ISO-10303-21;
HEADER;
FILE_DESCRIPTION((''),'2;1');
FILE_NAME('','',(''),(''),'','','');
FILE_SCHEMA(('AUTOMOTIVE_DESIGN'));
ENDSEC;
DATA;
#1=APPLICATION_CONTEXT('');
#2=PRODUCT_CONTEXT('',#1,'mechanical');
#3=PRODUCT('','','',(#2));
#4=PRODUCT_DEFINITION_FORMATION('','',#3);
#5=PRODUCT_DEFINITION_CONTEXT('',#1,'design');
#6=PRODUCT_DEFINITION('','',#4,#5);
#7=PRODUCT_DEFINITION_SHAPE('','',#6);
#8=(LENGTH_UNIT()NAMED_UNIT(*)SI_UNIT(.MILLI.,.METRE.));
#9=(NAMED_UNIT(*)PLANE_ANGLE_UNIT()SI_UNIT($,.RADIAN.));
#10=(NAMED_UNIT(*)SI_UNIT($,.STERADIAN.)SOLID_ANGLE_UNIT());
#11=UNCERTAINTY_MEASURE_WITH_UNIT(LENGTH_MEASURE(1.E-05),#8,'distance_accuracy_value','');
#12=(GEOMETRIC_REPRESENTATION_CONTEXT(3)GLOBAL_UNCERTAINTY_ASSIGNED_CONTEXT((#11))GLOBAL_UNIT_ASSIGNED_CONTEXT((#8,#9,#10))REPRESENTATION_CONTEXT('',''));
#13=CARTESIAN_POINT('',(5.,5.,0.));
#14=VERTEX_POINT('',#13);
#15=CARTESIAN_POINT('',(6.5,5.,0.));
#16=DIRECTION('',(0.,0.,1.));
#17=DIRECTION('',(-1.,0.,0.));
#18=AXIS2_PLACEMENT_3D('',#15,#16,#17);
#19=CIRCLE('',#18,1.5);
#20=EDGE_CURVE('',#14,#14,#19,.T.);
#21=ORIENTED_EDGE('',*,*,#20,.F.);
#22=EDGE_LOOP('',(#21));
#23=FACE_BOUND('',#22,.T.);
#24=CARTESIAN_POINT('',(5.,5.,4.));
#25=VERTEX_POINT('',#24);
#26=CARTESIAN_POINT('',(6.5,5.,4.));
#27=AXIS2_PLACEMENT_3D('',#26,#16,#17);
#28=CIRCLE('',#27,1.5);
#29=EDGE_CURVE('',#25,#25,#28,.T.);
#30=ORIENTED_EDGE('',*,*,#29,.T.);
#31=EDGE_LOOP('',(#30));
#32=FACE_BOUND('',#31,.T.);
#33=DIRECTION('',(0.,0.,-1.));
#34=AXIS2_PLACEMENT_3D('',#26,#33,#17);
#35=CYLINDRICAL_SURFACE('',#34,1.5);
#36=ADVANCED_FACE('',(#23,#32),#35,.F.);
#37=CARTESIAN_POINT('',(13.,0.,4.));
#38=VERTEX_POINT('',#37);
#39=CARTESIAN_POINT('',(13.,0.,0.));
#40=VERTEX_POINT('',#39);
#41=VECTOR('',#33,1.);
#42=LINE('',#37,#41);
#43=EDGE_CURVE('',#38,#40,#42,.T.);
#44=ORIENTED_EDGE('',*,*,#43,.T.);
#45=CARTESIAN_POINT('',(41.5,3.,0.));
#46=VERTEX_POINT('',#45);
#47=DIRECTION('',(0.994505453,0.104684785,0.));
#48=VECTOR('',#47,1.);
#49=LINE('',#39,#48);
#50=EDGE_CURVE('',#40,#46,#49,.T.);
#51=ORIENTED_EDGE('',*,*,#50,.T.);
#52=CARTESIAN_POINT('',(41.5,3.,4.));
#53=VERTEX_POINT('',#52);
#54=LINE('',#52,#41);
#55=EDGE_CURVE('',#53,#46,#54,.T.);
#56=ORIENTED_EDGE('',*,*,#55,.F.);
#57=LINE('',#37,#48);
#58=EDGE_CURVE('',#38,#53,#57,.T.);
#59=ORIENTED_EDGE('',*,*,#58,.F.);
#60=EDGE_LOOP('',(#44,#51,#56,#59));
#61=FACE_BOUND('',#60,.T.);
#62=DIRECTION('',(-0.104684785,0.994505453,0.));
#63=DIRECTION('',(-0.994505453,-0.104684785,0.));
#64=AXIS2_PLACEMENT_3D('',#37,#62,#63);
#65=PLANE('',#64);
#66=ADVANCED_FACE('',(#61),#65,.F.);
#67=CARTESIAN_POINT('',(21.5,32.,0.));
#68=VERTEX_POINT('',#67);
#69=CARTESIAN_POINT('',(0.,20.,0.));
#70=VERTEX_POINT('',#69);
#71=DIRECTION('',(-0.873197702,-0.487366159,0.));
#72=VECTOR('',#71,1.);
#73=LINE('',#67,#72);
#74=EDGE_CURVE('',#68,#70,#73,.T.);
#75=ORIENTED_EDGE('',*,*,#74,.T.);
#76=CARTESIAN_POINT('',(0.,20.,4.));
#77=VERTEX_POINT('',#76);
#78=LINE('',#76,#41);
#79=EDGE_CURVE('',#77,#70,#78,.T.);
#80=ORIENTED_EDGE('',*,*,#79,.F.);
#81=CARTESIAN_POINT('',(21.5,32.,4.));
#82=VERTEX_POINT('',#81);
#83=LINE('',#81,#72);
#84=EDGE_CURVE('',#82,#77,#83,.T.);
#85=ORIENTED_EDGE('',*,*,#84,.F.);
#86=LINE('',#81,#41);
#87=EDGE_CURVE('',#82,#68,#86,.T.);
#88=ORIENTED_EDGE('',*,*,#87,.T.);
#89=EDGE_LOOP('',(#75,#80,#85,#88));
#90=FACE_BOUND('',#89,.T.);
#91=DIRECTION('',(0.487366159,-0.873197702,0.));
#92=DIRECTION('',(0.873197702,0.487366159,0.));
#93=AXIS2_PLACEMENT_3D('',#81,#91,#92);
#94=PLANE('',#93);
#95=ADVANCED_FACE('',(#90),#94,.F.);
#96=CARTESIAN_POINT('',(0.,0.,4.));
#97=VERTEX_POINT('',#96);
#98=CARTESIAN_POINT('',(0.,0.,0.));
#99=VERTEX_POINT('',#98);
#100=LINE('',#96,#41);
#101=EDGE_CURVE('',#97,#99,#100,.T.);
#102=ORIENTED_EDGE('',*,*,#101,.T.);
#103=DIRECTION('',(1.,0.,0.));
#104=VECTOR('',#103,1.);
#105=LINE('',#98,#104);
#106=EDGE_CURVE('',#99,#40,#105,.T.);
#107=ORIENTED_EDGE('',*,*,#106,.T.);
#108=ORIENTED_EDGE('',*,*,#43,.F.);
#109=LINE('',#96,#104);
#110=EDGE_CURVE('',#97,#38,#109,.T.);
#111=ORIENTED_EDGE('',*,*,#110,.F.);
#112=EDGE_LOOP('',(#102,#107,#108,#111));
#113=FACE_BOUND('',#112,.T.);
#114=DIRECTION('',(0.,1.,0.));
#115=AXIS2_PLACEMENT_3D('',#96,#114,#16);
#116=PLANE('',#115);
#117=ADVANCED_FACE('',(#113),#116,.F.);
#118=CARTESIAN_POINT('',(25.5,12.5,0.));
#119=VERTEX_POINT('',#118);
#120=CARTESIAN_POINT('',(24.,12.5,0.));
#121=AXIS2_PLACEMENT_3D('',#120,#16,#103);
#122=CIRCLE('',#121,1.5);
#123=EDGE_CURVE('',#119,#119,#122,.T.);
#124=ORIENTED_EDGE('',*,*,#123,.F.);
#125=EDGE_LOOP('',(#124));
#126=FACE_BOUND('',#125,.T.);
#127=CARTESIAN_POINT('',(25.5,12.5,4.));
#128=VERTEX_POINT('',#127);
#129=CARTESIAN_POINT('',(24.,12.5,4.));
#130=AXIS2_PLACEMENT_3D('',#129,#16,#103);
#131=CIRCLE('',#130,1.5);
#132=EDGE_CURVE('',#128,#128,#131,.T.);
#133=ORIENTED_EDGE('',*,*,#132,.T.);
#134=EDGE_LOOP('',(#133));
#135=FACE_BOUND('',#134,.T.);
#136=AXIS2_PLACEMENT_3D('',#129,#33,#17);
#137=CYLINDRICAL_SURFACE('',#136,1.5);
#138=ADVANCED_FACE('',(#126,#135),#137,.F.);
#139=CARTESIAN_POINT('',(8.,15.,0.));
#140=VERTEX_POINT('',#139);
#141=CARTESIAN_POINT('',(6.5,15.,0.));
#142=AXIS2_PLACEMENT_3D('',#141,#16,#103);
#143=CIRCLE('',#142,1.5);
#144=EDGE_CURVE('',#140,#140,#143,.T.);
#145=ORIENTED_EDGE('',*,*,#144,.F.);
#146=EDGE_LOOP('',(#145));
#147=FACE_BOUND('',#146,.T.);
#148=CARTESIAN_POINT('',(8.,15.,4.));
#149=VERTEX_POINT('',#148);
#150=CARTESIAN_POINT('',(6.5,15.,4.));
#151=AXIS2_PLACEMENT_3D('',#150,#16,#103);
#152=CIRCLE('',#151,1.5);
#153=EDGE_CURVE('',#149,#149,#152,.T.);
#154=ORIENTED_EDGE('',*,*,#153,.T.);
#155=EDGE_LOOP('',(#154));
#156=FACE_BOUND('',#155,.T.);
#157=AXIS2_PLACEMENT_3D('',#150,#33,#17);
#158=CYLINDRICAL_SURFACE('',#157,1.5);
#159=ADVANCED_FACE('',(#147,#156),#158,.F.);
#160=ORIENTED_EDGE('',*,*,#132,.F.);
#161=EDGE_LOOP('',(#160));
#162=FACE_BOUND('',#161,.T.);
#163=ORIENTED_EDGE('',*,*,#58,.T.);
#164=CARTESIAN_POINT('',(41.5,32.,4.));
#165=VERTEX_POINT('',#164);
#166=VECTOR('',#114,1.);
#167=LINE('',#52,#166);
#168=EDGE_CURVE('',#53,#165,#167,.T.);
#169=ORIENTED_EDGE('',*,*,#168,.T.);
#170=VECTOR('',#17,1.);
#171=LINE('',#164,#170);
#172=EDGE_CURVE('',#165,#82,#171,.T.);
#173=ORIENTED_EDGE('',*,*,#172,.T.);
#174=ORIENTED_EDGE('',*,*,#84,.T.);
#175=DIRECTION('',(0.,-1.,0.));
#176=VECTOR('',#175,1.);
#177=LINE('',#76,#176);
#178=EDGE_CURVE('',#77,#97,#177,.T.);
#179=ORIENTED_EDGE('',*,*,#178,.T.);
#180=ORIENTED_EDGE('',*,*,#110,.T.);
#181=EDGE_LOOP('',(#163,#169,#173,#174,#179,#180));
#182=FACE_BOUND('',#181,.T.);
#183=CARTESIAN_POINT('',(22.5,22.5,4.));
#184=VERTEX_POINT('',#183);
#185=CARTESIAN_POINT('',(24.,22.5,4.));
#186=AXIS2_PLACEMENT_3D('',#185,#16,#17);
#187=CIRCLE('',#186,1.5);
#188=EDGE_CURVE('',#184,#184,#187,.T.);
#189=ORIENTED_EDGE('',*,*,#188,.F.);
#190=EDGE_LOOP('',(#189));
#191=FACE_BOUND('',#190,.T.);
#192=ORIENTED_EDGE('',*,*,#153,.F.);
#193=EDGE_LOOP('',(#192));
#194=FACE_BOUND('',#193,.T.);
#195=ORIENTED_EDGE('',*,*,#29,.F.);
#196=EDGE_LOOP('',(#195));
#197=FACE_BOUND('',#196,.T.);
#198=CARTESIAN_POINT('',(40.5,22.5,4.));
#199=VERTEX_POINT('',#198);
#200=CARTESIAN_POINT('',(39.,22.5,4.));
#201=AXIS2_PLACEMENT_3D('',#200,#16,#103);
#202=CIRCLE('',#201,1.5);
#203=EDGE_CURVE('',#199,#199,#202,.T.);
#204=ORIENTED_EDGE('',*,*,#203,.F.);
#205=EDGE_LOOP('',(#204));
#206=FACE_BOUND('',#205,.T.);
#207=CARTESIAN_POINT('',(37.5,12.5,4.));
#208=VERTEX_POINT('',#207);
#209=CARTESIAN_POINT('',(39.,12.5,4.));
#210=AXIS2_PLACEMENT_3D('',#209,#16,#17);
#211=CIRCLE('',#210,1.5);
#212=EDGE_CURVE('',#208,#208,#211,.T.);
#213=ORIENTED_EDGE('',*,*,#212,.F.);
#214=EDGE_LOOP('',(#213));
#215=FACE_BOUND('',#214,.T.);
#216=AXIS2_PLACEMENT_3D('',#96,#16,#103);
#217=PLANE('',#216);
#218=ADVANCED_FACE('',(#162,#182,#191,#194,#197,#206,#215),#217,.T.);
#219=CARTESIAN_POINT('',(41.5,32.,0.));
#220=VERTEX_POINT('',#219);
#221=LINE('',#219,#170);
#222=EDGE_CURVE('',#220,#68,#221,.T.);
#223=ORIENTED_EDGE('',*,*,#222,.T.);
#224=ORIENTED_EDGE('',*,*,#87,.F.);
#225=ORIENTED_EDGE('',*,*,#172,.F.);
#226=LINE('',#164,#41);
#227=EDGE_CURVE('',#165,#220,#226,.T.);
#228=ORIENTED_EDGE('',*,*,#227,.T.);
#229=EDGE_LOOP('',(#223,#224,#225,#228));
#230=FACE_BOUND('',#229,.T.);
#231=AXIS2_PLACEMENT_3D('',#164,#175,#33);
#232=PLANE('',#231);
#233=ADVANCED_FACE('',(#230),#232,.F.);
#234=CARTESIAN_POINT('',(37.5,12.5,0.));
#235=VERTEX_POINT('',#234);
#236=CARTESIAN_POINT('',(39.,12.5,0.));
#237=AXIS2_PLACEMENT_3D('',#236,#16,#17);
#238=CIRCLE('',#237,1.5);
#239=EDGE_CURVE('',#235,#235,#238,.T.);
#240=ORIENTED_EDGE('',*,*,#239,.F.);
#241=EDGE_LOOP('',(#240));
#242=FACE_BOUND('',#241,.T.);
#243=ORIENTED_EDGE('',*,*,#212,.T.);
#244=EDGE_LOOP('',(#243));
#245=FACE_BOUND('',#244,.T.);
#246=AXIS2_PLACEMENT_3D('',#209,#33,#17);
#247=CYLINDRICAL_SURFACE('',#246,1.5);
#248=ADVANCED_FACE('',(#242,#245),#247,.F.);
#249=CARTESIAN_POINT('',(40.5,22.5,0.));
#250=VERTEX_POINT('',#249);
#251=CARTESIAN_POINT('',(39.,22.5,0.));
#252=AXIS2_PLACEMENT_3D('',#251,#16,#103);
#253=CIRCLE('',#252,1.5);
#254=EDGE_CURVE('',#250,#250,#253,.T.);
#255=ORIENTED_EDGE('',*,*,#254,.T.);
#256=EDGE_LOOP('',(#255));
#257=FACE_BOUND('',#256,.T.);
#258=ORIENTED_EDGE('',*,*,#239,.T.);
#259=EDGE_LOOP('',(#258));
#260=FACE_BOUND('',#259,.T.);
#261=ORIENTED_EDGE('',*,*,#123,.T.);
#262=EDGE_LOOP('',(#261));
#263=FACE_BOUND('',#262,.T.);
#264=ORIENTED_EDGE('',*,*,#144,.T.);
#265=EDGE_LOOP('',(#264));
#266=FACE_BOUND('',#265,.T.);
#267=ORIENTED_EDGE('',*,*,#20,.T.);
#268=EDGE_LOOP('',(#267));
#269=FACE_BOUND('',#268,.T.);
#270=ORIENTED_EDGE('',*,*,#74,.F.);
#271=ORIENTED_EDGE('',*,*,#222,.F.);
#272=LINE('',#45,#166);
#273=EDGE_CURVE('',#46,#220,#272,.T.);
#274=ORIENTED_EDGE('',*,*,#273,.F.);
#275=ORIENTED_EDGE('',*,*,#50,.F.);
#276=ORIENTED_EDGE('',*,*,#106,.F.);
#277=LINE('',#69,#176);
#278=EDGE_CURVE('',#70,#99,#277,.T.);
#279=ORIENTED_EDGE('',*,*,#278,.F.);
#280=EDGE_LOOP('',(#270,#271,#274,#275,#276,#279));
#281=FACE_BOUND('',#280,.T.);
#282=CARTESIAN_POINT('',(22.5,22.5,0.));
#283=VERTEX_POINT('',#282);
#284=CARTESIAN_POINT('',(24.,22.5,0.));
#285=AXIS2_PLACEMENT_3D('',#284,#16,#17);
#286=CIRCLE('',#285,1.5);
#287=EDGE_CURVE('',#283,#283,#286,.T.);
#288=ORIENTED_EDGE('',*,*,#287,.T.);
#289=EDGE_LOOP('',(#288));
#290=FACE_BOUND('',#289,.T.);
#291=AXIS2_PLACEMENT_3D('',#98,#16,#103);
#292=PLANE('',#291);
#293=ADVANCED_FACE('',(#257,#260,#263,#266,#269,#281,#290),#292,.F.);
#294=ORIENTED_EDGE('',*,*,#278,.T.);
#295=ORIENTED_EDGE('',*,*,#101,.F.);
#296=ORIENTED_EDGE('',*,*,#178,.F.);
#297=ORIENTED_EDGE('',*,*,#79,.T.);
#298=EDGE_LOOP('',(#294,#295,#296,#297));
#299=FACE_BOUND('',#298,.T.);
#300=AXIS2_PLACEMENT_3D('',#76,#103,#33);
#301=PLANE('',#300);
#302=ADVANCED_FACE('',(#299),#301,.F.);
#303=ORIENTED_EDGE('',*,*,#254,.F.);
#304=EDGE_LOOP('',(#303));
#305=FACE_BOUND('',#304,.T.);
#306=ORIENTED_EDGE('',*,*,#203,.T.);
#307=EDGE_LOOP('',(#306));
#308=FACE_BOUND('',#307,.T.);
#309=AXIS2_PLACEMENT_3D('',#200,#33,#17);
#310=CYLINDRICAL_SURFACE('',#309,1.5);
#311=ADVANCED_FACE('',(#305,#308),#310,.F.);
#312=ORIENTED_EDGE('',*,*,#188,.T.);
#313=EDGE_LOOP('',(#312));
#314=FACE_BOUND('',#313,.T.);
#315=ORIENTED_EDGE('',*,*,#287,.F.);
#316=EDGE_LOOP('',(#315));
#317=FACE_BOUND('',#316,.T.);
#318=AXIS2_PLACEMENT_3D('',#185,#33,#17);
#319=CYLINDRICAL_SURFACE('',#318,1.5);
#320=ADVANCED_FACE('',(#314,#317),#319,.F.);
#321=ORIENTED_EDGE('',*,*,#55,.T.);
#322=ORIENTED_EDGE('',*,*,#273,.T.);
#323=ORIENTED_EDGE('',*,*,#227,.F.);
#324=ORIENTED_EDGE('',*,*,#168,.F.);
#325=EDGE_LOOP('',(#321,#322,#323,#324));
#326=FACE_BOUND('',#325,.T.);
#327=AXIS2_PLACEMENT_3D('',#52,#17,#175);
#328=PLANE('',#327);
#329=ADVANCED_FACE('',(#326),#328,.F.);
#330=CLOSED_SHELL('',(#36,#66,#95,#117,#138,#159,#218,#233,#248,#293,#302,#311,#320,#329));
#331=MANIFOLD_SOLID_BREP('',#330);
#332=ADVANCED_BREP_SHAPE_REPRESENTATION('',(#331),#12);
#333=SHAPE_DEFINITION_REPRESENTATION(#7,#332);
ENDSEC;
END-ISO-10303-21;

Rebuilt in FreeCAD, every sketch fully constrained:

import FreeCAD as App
import Part
import Sketcher

V = App.Vector
Q = App.Units.Quantity


def add_polygon(sketch, points):
    """Adds a closed chain of lines whose ends are joined by coincident constraints."""
    first, n = sketch.GeometryCount, len(points)
    for a, b in zip(points, points[1:] + points[:1]):
        sketch.addGeometry(Part.LineSegment(App.Vector(*a, 0), App.Vector(*b, 0)), False)
    for i in range(n):
        sketch.addConstraint(Sketcher.Constraint("Coincident", first + i, 2, first + (i + 1) % n, 1))

doc = App.newDocument("Part")
body = doc.addObject("PartDesign::Body", "Body")

# Sketch on XY plane
sketch1 = body.newObject("Sketcher::SketchObject", "Sketch")
sketch1.AttachmentSupport = (doc.getObject("XY_Plane"), [""])
sketch1.MapMode = "FlatFace"
add_polygon(sketch1, [(0, 0), (13, 0), (41.5, 3), (41.5, 32), (21.5, 32), (0, 20)])  # lines 0-5
sketch1.addGeometry(Part.Circle(V(6.5, 5, 0), V(0, 0, 1), 1.5), False)  # 6
sketch1.addGeometry(Part.Circle(V(24, 12.5, 0), V(0, 0, 1), 1.5), False)  # 7
sketch1.addGeometry(Part.Circle(V(39, 12.5, 0), V(0, 0, 1), 1.5), False)  # 8
sketch1.addGeometry(Part.Circle(V(6.5, 15, 0), V(0, 0, 1), 1.5), False)  # 9
sketch1.addGeometry(Part.Circle(V(24, 22.5, 0), V(0, 0, 1), 1.5), False)  # 10
sketch1.addGeometry(Part.Circle(V(39, 22.5, 0), V(0, 0, 1), 1.5), False)  # 11
sketch1.addConstraint([
    Sketcher.Constraint("Horizontal", 0),
    Sketcher.Constraint("Vertical", 2),
    Sketcher.Constraint("Horizontal", 3),
    Sketcher.Constraint("Vertical", 5),
    Sketcher.Constraint("Coincident", 5, 2, -1, 1),
    Sketcher.Constraint("Equal", 6, 7),
    Sketcher.Constraint("Equal", 7, 8),
    Sketcher.Constraint("Equal", 8, 9),
    Sketcher.Constraint("Equal", 9, 10),
    Sketcher.Constraint("Equal", 10, 11),
    Sketcher.Constraint("Horizontal", 7, 3, 8, 3),
    Sketcher.Constraint("Horizontal", 10, 3, 11, 3),
    Sketcher.Constraint("Vertical", 6, 3, 9, 3),
    Sketcher.Constraint("Vertical", 7, 3, 10, 3),
    Sketcher.Constraint("Vertical", 8, 3, 11, 3),
    Sketcher.Constraint("Equal", 3, 5),
    Sketcher.Constraint("Diameter", 6, Q("3 mm")),
    Sketcher.Constraint("DistanceX", 0, 1, 0, 2, Q("13 mm")),
    Sketcher.Constraint("DistanceX", 3, 2, 3, 1, Q("20 mm")),
    Sketcher.Constraint("DistanceY", 2, 1, 2, 2, Q("29 mm")),
    Sketcher.Constraint("DistanceY", -1, 1, 6, 3, Q("5 mm")),
    Sketcher.Constraint("DistanceX", -1, 1, 7, 3, Q("24 mm")),
    Sketcher.Constraint("DistanceX", -1, 1, 8, 3, Q("39 mm")),
    Sketcher.Constraint("DistanceY", -1, 1, 9, 3, Q("15 mm")),
    Sketcher.Constraint("DistanceY", -1, 1, 1, 2, Q("3 mm")),
    Sketcher.Constraint("DistanceY", 7, 3, 10, 3, Q("10 mm")),
    Sketcher.Constraint("DistanceX", 9, 3, 3, 2, Q("15 mm")),
    Sketcher.Constraint("DistanceX", -1, 1, 6, 3, Q("6.5 mm")),
    Sketcher.Constraint("DistanceY", -1, 1, 7, 3, Q("12.5 mm")),
])
pad1 = body.newObject("PartDesign::Pad", "Pad")
pad1.Profile = sketch1
pad1.Length = 4

doc.recompute()
